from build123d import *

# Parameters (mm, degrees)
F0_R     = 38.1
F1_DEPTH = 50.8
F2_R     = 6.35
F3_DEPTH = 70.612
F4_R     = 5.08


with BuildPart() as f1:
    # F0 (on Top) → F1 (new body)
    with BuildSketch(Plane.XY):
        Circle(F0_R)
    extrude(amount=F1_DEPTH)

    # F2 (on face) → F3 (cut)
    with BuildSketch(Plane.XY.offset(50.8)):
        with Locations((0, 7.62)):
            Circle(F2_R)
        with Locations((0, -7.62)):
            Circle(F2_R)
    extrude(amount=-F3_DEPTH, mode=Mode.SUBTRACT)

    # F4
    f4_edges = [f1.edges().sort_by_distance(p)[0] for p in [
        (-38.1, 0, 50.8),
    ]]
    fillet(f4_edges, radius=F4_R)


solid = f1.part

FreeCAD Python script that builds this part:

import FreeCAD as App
import Part
import Sketcher
Q = App.Units.Quantity


def edges_at(feature, points):
    """Names of the edges that pass closest to the given points."""
    edges = feature.Shape.Edges
    near = lambda p: min(range(len(edges)), key=lambda i: edges[i].distToShape(Part.Vertex(*p))[0])
    return sorted({f"Edge{near(p) + 1}" for p in points})

doc = App.newDocument("Part")
body = doc.addObject("PartDesign::Body", "Body")

# Sketch on XY plane
sketch1 = body.newObject("Sketcher::SketchObject", "Sketch")
sketch1.AttachmentSupport = (doc.getObject("XY_Plane"), [""])
sketch1.MapMode = "FlatFace"
sketch1.addGeometry(Part.Circle(App.Vector(0, 0, 0), App.Vector(0, 0, 1), 38), False)
sketch1.addConstraint(Sketcher.Constraint("Coincident", 0, 3, -1, 1))
sketch1.addConstraint(Sketcher.Constraint("Diameter", 0, Q("3 in")))
pad1 = body.newObject("PartDesign::Pad", "Pad")
pad1.Profile = sketch1
pad1.Length = Q("2 in")

# Sketch on XY plane
sketch2 = body.newObject("Sketcher::SketchObject", "Sketch001")
sketch2.AttachmentSupport = (doc.getObject("XY_Plane"), [""])
sketch2.MapMode = "FlatFace"
sketch2.AttachmentOffset = App.Placement(App.Vector(0, 0, 2 * 25.4), App.Rotation())
sketch2.addGeometry(Part.Circle(App.Vector(0, 8, 0), App.Vector(0, 0, 1), 6), False)
sketch2.addGeometry(Part.Circle(App.Vector(0, -8, 0), App.Vector(0, 0, 1), 6), False)
sketch2.addConstraint(Sketcher.Constraint("Equal", 0, 1))
sketch2.addConstraint(Sketcher.Constraint("Symmetric", 0, 3, 1, 3, -1, 1))
sketch2.addConstraint(Sketcher.Constraint("PointOnObject", 0, 3, -2))
sketch2.addConstraint(Sketcher.Constraint("Diameter", 0, Q("0.5 in")))
sketch2.addConstraint(Sketcher.Constraint("DistanceY", -1, 1, 0, 3, Q("0.3 in")))
pocket1 = body.newObject("PartDesign::Pocket", "Pocket")
pocket1.Profile = sketch2
pocket1.Length = Q("2.78 in")
doc.recompute()

fillet = body.newObject("PartDesign::Fillet", "Fillet")
fillet.Base = (pocket1, edges_at(pocket1, [(-38.1, 0, 50.8)]))
fillet.Radius = Q("0.2 in")

doc.recompute()
